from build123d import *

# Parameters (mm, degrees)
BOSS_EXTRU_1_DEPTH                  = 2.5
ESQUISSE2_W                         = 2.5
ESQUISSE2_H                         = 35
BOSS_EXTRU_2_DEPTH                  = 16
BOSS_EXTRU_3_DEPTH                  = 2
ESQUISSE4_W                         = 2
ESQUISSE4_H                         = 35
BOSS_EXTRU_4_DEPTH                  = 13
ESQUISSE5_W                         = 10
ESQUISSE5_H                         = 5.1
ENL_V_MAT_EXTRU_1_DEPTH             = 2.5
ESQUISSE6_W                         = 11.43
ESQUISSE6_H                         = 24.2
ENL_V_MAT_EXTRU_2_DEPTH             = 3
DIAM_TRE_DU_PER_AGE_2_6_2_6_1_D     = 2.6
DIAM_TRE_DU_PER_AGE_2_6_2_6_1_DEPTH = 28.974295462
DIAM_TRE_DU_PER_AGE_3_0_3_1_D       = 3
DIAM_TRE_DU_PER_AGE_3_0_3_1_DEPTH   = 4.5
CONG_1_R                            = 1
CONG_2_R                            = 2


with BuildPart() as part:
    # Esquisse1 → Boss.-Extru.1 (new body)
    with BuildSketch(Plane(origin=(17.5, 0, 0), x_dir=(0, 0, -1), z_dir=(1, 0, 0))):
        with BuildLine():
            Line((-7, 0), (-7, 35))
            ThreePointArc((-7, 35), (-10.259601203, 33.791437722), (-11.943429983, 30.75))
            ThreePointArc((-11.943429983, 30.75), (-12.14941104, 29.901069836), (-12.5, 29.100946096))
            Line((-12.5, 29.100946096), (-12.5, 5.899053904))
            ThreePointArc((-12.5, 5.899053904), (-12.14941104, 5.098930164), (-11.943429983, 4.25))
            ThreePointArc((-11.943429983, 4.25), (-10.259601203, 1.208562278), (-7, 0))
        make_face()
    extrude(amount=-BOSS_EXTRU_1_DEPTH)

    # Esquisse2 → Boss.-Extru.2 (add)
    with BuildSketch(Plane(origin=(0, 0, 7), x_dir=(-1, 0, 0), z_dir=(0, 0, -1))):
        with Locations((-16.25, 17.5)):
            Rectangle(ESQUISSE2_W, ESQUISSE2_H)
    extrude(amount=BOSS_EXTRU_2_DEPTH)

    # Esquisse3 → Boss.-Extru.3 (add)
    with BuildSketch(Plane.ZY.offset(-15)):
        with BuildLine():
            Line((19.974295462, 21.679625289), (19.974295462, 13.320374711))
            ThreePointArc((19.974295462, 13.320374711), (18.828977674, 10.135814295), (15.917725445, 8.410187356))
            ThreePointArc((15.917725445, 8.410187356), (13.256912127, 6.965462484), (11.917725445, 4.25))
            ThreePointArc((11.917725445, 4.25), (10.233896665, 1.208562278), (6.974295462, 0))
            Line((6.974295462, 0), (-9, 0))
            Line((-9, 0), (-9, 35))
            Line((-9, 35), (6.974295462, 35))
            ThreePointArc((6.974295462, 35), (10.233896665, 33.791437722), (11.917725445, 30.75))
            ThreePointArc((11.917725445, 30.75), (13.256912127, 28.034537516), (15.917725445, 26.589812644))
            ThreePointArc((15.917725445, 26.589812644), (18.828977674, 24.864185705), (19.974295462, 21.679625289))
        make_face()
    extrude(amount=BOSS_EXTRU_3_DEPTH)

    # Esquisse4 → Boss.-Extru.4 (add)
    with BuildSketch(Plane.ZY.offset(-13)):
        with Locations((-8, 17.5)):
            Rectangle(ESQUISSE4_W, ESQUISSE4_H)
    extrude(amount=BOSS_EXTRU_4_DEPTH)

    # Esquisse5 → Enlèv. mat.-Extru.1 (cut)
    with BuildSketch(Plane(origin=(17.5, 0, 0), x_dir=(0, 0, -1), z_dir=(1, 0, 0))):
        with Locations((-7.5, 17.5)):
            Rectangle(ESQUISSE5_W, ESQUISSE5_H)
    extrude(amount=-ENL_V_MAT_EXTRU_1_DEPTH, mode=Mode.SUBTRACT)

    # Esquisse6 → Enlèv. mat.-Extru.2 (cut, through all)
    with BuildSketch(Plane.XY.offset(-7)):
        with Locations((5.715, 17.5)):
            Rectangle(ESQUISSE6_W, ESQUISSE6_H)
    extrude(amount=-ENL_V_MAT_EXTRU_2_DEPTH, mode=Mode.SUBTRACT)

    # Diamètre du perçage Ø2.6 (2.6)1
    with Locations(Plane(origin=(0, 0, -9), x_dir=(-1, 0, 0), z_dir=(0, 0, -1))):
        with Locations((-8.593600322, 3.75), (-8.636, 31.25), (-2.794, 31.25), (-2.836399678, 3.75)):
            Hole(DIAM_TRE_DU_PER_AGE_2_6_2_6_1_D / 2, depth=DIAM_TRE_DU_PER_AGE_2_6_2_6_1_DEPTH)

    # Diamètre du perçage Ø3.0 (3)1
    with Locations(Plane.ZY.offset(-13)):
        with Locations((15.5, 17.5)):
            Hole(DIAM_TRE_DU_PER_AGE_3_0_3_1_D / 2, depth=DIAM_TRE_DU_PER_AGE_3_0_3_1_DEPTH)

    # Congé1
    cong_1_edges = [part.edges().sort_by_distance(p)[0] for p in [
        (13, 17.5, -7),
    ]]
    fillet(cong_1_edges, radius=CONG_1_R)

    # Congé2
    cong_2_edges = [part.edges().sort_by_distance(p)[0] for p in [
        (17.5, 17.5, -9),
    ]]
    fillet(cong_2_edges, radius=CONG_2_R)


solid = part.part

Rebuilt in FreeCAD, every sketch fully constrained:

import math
import FreeCAD as App
import Part
import Sketcher
from FreeCAD import Vector
Q = App.Units.Quantity


def edges_at(feature, points):
    """Names of the edges that pass closest to the given points."""
    edges = feature.Shape.Edges
    near = lambda p: min(range(len(edges)), key=lambda i: edges[i].distToShape(Part.Vertex(*p))[0])
    return sorted({f"Edge{near(p) + 1}" for p in points})

doc = App.newDocument("Part")
body = doc.addObject("PartDesign::Body", "Body")

# Sketch on YZ plane
sketch1 = body.newObject("Sketcher::SketchObject", "Sketch")
sketch1.AttachmentSupport = (doc.getObject("YZ_Plane"), [""])
sketch1.MapMode = "FlatFace"
sketch1.AttachmentOffset = App.Placement(Vector(0, 0, 17.5), App.Rotation())
sketch1.addGeometry([
    Part.LineSegment(Vector(0, 7, 0), Vector(35, 7, 0)),  # 0
    Part.ArcOfCircle(Part.Circle(Vector(30, 7, 0), Vector(0, 0, 1), 5), math.radians(0), math.radians(81)),  # 1
    Part.ArcOfCircle(Part.Circle(Vector(31.5, 16.9, 0), Vector(0, 0, 1), 5), math.radians(-119), math.radians(-99)),  # 2
    Part.LineSegment(Vector(29.1, 12.5, 0), Vector(5.9, 12.5, 0)),  # 3
    Part.ArcOfCircle(Part.Circle(Vector(3.5, 16.9, 0), Vector(0, 0, 1), 5), math.radians(-81), math.radians(-61)),  # 4
    Part.ArcOfCircle(Part.Circle(Vector(5, 7, 0), Vector(0, 0, 1), 5), math.radians(99), math.radians(180)),  # 5
], False)
sketch1.addConstraint([
    Sketcher.Constraint("Coincident", 0, 2, 1, 1),
    Sketcher.Constraint("Tangent", 1, 2, 2, 2),
    Sketcher.Constraint("Coincident", 2, 1, 3, 1),
    Sketcher.Constraint("Coincident", 3, 2, 4, 2),
    Sketcher.Constraint("Tangent", 4, 1, 5, 1),
    Sketcher.Constraint("Coincident", 5, 2, 0, 1),
    Sketcher.Constraint("Horizontal", 0),
    Sketcher.Constraint("Horizontal", 3),
    Sketcher.Constraint("Equal", 1, 2),
    Sketcher.Constraint("Equal", 2, 4),
    Sketcher.Constraint("Equal", 4, 5),
    Sketcher.Constraint("PointOnObject", 5, 2, -2),
    Sketcher.Constraint("Horizontal", 2, 3, 4, 3),
    Sketcher.Constraint("Horizontal", 1, 3, 5, 3),
    Sketcher.Constraint("Horizontal", 5, 3, 0, 2),
    Sketcher.Constraint("Radius", 1, Q("5 mm")),
    Sketcher.Constraint("DistanceX", 0, 1, 0, 2, Q("35 mm")),
    Sketcher.Constraint("DistanceY", -1, 1, 1, 3, Q("7 mm")),
    Sketcher.Constraint("DistanceX", 4, 3, 2, 3, Q("28 mm")),
    Sketcher.Constraint("DistanceY", -1, 1, 2, 1, Q("12.5 mm")),
])
pad1 = body.newObject("PartDesign::Pad", "Pad")
pad1.Profile = sketch1
pad1.Length = 2.5
pad1.Reversed = True

# Sketch on XY plane
sketch2 = body.newObject("Sketcher::SketchObject", "Sketch001")
sketch2.AttachmentSupport = (doc.getObject("XY_Plane"), [""])
sketch2.MapMode = "FlatFace"
sketch2.AttachmentOffset = App.Placement(Vector(0, 0, 7), App.Rotation())
sketch2.addGeometry([
    Part.LineSegment(Vector(17.5, 35, 0), Vector(17.5, 0, 0)),
    Part.LineSegment(Vector(17.5, 0, 0), Vector(15, 0, 0)),
    Part.LineSegment(Vector(15, 0, 0), Vector(15, 35, 0)),
    Part.LineSegment(Vector(15, 35, 0), Vector(17.5, 35, 0)),
], False)
sketch2.addConstraint([
    Sketcher.Constraint("Coincident", 0, 2, 1, 1),
    Sketcher.Constraint("Coincident", 1, 2, 2, 1),
    Sketcher.Constraint("Coincident", 2, 2, 3, 1),
    Sketcher.Constraint("Coincident", 3, 2, 0, 1),
    Sketcher.Constraint("Vertical", 0),
    Sketcher.Constraint("Horizontal", 1),
    Sketcher.Constraint("Vertical", 2),
    Sketcher.Constraint("Horizontal", 3),
    Sketcher.Constraint("PointOnObject", 0, 2, -1),
    Sketcher.Constraint("DistanceY", 0, 2, 0, 1, Q("35 mm")),
    Sketcher.Constraint("DistanceX", 1, 2, 1, 1, Q("2.5 mm")),
    Sketcher.Constraint("DistanceX", -1, 1, 1, 2, Q("15 mm")),
])
pad2 = body.newObject("PartDesign::Pad", "Pad001")
pad2.Profile = sketch2
pad2.Length = 16
pad2.Reversed = True

# Sketch on YZ plane
sketch3 = body.newObject("Sketcher::SketchObject", "Sketch002")
sketch3.AttachmentSupport = (doc.getObject("YZ_Plane"), [""])
sketch3.MapMode = "FlatFace"
sketch3.AttachmentOffset = App.Placement(Vector(0, 0, 15), App.Rotation())
sketch3.addGeometry([
    Part.LineSegment(Vector(13.3, 20, 0), Vector(21.7, 20, 0)),  # 0
    Part.ArcOfCircle(Part.Circle(Vector(21.7, 15, 0), Vector(0, 0, 1), 5), math.radians(11), math.radians(90)),  # 1
    Part.ArcOfCircle(Part.Circle(Vector(31.5, 16.9, 0), Vector(0, 0, 1), 5), math.radians(-169), math.radians(-99)),  # 2
    Part.ArcOfCircle(Part.Circle(Vector(30, 7, 0), Vector(0, 0, 1), 5), math.radians(0), math.radians(81)),  # 3
    Part.LineSegment(Vector(35, 7, 0), Vector(35, -9, 0)),  # 4
    Part.LineSegment(Vector(35, -9, 0), Vector(0, -9, 0)),  # 5
    Part.LineSegment(Vector(0, -9, 0), Vector(0, 7, 0)),  # 6
    Part.ArcOfCircle(Part.Circle(Vector(5, 7, 0), Vector(0, 0, 1), 5), math.radians(99), math.radians(180)),  # 7
    Part.ArcOfCircle(Part.Circle(Vector(3.5, 16.9, 0), Vector(0, 0, 1), 5), math.radians(-81), math.radians(-11)),  # 8
    Part.ArcOfCircle(Part.Circle(Vector(13.3, 15, 0), Vector(0, 0, 1), 5), math.radians(90), math.radians(169)),  # 9
], False)
sketch3.addConstraint([
    Sketcher.Constraint("Tangent", 0, 2, 1, 2),
    Sketcher.Constraint("Tangent", 1, 1, 2, 1),
    Sketcher.Constraint("Tangent", 2, 2, 3, 2),
    Sketcher.Constraint("Tangent", 3, 1, 4, 1),
    Sketcher.Constraint("Coincident", 4, 2, 5, 1),
    Sketcher.Constraint("Coincident", 5, 2, 6, 1),
    Sketcher.Constraint("Tangent", 6, 2, 7, 2),
    Sketcher.Constraint("Tangent", 7, 1, 8, 1),
    Sketcher.Constraint("Tangent", 8, 2, 9, 2),
    Sketcher.Constraint("Tangent", 9, 1, 0, 1),
    Sketcher.Constraint("Horizontal", 0),
    Sketcher.Constraint("Vertical", 4),
    Sketcher.Constraint("Horizontal", 5),
    Sketcher.Constraint("Vertical", 6),
    Sketcher.Constraint("Equal", 1, 2),
    Sketcher.Constraint("Equal", 2, 3),
    Sketcher.Constraint("Equal", 3, 7),
    Sketcher.Constraint("Equal", 7, 8),
    Sketcher.Constraint("Equal", 8, 9),
    Sketcher.Constraint("PointOnObject", 5, 2, -2),
    Sketcher.Constraint("Horizontal", 3, 3, 7, 3),
    Sketcher.Constraint("Horizontal", 2, 3, 8, 3),
    Sketcher.Constraint("Radius", 1, Q("5 mm")),
    Sketcher.Constraint("DistanceX", 5, 2, 5, 1, Q("35 mm")),
    Sketcher.Constraint("DistanceY", 4, 2, -1, 1, Q("9 mm")),
    Sketcher.Constraint("DistanceY", 3, 3, 1, 3, Q("8 mm")),
    Sketcher.Constraint("DistanceX", 8, 3, 2, 3, Q("28 mm")),
    Sketcher.Constraint("DistanceY", 4, 2, 4, 1, Q("15.974295 mm")),
])
pad3 = body.newObject("PartDesign::Pad", "Pad002")
pad3.Profile = sketch3
pad3.Length = 2
pad3.Reversed = True

# Sketch on YZ plane
sketch4 = body.newObject("Sketcher::SketchObject", "Sketch003")
sketch4.AttachmentSupport = (doc.getObject("YZ_Plane"), [""])
sketch4.MapMode = "FlatFace"
sketch4.AttachmentOffset = App.Placement(Vector(0, 0, 13), App.Rotation())
sketch4.addGeometry([
    Part.LineSegment(Vector(35, -9, 0), Vector(0, -9, 0)),
    Part.LineSegment(Vector(0, -9, 0), Vector(0, -7, 0)),
    Part.LineSegment(Vector(0, -7, 0), Vector(35, -7, 0)),
    Part.LineSegment(Vector(35, -7, 0), Vector(35, -9, 0)),
], False)
sketch4.addConstraint([
    Sketcher.Constraint("Coincident", 0, 2, 1, 1),
    Sketcher.Constraint("Coincident", 1, 2, 2, 1),
    Sketcher.Constraint("Coincident", 2, 2, 3, 1),
    Sketcher.Constraint("Coincident", 3, 2, 0, 1),
    Sketcher.Constraint("Horizontal", 0),
    Sketcher.Constraint("Vertical", 1),
    Sketcher.Constraint("Horizontal", 2),
    Sketcher.Constraint("Vertical", 3),
    Sketcher.Constraint("PointOnObject", 0, 2, -2),
    Sketcher.Constraint("DistanceX", 0, 2, 0, 1, Q("35 mm")),
    Sketcher.Constraint("DistanceY", 1, 1, 1, 2, Q("2 mm")),
    Sketcher.Constraint("DistanceY", 0, 2, -1, 1, Q("9 mm")),
])
pad4 = body.newObject("PartDesign::Pad", "Pad003")
pad4.Profile = sketch4
pad4.Length = 13
pad4.Reversed = True

# Sketch on YZ plane
sketch5 = body.newObject("Sketcher::SketchObject", "Sketch004")
sketch5.AttachmentSupport = (doc.getObject("YZ_Plane"), [""])
sketch5.MapMode = "FlatFace"
sketch5.AttachmentOffset = App.Placement(Vector(0, 0, 17.5), App.Rotation())
sketch5.addGeometry([
    Part.LineSegment(Vector(20, 12, 0), Vector(15, 12, 0)),
    Part.LineSegment(Vector(15, 12, 0), Vector(15, 2, 0)),
    Part.LineSegment(Vector(15, 2, 0), Vector(20, 2, 0)),
    Part.LineSegment(Vector(20, 2, 0), Vector(20, 12, 0)),
], False)
sketch5.addConstraint([
    Sketcher.Constraint("Coincident", 0, 2, 1, 1),
    Sketcher.Constraint("Coincident", 1, 2, 2, 1),
    Sketcher.Constraint("Coincident", 2, 2, 3, 1),
    Sketcher.Constraint("Coincident", 3, 2, 0, 1),
    Sketcher.Constraint("Horizontal", 0),
    Sketcher.Constraint("Vertical", 1),
    Sketcher.Constraint("Horizontal", 2),
    Sketcher.Constraint("Vertical", 3),
    Sketcher.Constraint("DistanceY", 1, 2, 1, 1, Q("10 mm")),
    Sketcher.Constraint("DistanceX", 0, 2, 0, 1, Q("5.1 mm")),
    Sketcher.Constraint("DistanceY", -1, 1, 0, 2, Q("12.5 mm")),
    Sketcher.Constraint("DistanceX", -1, 1, 0, 2, Q("14.95 mm")),
])
pocket1 = body.newObject("PartDesign::Pocket", "Pocket")
pocket1.Profile = sketch5
pocket1.Length = 2.5

# Sketch on XY plane
sketch6 = body.newObject("Sketcher::SketchObject", "Sketch005")
sketch6.AttachmentSupport = (doc.getObject("XY_Plane"), [""])
sketch6.MapMode = "FlatFace"
sketch6.AttachmentOffset = App.Placement(Vector(0, 0, -7), App.Rotation())
sketch6.addGeometry([
    Part.LineSegment(Vector(0, 30, 0), Vector(0, 5, 0)),
    Part.LineSegment(Vector(0, 5, 0), Vector(11, 5, 0)),
    Part.LineSegment(Vector(11, 5, 0), Vector(11, 30, 0)),
    Part.LineSegment(Vector(11, 30, 0), Vector(0, 30, 0)),
], False)
sketch6.addConstraint([
    Sketcher.Constraint("Coincident", 0, 2, 1, 1),
    Sketcher.Constraint("Coincident", 1, 2, 2, 1),
    Sketcher.Constraint("Coincident", 2, 2, 3, 1),
    Sketcher.Constraint("Coincident", 3, 2, 0, 1),
    Sketcher.Constraint("Vertical", 0),
    Sketcher.Constraint("Horizontal", 1),
    Sketcher.Constraint("Vertical", 2),
    Sketcher.Constraint("Horizontal", 3),
    Sketcher.Constraint("PointOnObject", 0, 2, -2),
    Sketcher.Constraint("DistanceY", 0, 2, 0, 1, Q("24.2 mm")),
    Sketcher.Constraint("DistanceX", 1, 1, 1, 2, Q("11.43 mm")),
    Sketcher.Constraint("DistanceY", -1, 1, 0, 2, Q("5.4 mm")),
])
pocket2 = body.newObject("PartDesign::Pocket", "Pocket001")
pocket2.Profile = sketch6
pocket2.Type = "ThroughAll"

# Sketch on XY plane
sketch7 = body.newObject("Sketcher::SketchObject", "Sketch006")
sketch7.AttachmentSupport = (doc.getObject("XY_Plane"), [""])
sketch7.MapMode = "FlatFace"
sketch7.AttachmentOffset = App.Placement(Vector(0, 0, -9), App.Rotation())
sketch7.addGeometry([
    Part.Circle(Vector(8.6, 3.8, 0), Vector(0, 0, 1), 1.3),
    Part.Circle(Vector(8.6, 31.2, 0), Vector(0, 0, 1), 1.3),
    Part.Circle(Vector(2.8, 31.2, 0), Vector(0, 0, 1), 1.3),
    Part.Circle(Vector(2.8, 3.8, 0), Vector(0, 0, 1), 1.3),
], False)
sketch7.addConstraint([
    Sketcher.Constraint("Equal", 0, 1),
    Sketcher.Constraint("Equal", 1, 2),
    Sketcher.Constraint("Equal", 2, 3),
    Sketcher.Constraint("Horizontal", 1, 3, 2, 3),
    Sketcher.Constraint("Horizontal", 0, 3, 3, 3),
    Sketcher.Constraint("Diameter", 0, Q("2.6 mm")),
    Sketcher.Constraint("DistanceY", 0, 3, 1, 3, Q("27.5 mm")),
    Sketcher.Constraint("DistanceY", -1, 1, 0, 3, Q("3.75 mm")),
    Sketcher.Constraint("DistanceX", -1, 1, 1, 3, Q("8.636 mm")),
    Sketcher.Constraint("DistanceX", -1, 1, 2, 3, Q("2.794 mm")),
    Sketcher.Constraint("DistanceX", -1, 1, 0, 3, Q("8.5936 mm")),
    Sketcher.Constraint("DistanceX", -1, 1, 3, 3, Q("2.8364 mm")),
])
doc.recompute()
hole = body.newObject("PartDesign::Hole", "Hole")
hole.Profile = sketch7
hole.ThreadType = "None"
hole.Diameter = 2.6
hole.DepthType = "Dimension"
hole.Depth = 28.974295
hole.DrillPoint = "Flat"
hole.Reversed = True

# Sketch on YZ plane
sketch8 = body.newObject("Sketcher::SketchObject", "Sketch007")
sketch8.AttachmentSupport = (doc.getObject("YZ_Plane"), [""])
sketch8.MapMode = "FlatFace"
sketch8.AttachmentOffset = App.Placement(Vector(0, 0, 13), App.Rotation())
sketch8.addGeometry(Part.Circle(Vector(17.5, 15.5, 0), Vector(0, 0, 1), 1.5), False)
sketch8.addConstraint([
    Sketcher.Constraint("Diameter", 0, Q("3 mm")),
    Sketcher.Constraint("DistanceX", -1, 1, 0, 3, Q("17.5 mm")),
    Sketcher.Constraint("DistanceY", -1, 1, 0, 3, Q("15.5 mm")),
])
doc.recompute()
hole2 = body.newObject("PartDesign::Hole", "Hole001")
hole2.Profile = sketch8
hole2.ThreadType = "None"
hole2.Diameter = 3
hole2.DepthType = "Dimension"
hole2.Depth = 4.5
hole2.DrillPoint = "Flat"
hole2.Reversed = True
doc.recompute()

fillet = body.newObject("PartDesign::Fillet", "Fillet")
fillet.Base = (hole2, edges_at(hole2, [(13, 17.5, -7)]))
fillet.Radius = 1
doc.recompute()

fillet2 = body.newObject("PartDesign::Fillet", "Fillet001")
fillet2.Base = (fillet, edges_at(fillet, [(17.5, 17.5, -9)]))
fillet2.Radius = 2

doc.recompute()
